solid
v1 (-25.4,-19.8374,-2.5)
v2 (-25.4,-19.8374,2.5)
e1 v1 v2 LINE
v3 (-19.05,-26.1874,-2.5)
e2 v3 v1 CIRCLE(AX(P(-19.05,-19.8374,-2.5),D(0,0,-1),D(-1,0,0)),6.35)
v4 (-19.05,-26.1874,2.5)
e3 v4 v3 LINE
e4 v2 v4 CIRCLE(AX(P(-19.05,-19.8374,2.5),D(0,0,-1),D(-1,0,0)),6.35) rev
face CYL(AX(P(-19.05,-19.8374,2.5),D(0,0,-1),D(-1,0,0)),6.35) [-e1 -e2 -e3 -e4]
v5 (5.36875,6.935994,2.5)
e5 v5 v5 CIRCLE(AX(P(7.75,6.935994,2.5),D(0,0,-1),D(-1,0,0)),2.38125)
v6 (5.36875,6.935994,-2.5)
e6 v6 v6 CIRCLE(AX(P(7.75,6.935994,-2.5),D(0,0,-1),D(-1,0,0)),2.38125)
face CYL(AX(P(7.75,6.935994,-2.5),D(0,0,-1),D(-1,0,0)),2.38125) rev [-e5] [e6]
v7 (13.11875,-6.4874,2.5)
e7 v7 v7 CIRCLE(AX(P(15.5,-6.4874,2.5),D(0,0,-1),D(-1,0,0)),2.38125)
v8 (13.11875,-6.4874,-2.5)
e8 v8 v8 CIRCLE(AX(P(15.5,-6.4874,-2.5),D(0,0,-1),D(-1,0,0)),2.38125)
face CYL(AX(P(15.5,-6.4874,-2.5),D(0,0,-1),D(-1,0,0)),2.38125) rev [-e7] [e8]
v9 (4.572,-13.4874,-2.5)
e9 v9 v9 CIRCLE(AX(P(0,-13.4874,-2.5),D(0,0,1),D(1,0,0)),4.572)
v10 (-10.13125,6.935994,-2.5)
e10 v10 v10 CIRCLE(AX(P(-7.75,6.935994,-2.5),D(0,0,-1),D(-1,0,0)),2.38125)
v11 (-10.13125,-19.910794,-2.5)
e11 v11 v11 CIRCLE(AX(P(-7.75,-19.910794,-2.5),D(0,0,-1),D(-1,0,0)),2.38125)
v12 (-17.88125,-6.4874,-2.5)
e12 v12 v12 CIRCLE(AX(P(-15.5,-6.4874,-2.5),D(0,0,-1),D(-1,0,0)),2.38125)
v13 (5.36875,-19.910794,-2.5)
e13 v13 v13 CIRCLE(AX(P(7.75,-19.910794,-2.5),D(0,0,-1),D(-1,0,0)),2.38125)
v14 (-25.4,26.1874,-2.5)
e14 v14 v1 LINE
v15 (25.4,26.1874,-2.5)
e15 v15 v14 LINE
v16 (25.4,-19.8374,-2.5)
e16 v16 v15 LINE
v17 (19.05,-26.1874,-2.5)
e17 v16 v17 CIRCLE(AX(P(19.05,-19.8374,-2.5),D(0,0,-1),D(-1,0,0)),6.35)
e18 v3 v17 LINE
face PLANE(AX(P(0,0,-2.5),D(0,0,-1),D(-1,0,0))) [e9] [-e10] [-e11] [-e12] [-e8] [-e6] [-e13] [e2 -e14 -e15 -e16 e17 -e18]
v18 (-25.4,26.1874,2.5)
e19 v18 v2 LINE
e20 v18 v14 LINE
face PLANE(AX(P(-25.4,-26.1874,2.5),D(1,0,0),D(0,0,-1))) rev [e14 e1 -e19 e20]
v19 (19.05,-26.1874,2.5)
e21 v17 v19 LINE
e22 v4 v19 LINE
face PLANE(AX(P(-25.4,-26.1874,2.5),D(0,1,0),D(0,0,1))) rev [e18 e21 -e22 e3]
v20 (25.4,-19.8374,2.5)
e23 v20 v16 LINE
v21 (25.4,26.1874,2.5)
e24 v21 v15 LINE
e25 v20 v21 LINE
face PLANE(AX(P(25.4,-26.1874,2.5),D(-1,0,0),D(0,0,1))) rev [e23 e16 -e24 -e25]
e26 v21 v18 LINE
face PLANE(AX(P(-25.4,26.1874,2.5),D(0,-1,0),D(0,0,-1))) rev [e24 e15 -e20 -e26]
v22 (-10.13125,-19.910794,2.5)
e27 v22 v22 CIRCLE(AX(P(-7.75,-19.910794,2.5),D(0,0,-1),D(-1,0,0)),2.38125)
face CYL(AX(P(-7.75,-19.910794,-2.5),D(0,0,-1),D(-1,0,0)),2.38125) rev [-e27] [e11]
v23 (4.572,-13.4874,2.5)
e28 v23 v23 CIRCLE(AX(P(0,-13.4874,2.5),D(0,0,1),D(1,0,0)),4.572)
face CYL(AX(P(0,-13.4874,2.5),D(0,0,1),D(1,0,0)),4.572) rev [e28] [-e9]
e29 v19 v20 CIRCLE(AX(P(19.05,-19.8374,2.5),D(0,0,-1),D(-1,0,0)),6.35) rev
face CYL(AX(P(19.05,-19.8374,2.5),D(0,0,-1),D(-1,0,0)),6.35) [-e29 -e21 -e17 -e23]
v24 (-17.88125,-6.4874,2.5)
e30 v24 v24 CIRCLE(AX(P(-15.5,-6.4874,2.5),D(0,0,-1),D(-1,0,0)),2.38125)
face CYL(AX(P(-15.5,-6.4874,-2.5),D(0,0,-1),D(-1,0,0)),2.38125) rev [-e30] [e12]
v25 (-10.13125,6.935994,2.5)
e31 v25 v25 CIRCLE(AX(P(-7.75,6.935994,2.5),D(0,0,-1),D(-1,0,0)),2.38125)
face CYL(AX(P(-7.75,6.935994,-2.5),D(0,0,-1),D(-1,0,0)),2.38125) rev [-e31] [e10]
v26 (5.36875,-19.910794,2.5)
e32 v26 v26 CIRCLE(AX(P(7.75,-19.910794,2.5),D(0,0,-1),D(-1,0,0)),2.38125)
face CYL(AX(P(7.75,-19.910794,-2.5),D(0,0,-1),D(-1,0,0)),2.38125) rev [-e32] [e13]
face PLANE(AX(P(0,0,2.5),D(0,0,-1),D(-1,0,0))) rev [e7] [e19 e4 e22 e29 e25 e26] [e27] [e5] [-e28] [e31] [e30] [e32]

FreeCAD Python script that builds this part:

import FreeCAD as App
import Part
import Sketcher
Q = App.Units.Quantity


def edges_at(feature, points):
    """Names of the edges that pass closest to the given points."""
    edges = feature.Shape.Edges
    near = lambda p: min(range(len(edges)), key=lambda i: edges[i].distToShape(Part.Vertex(*p))[0])
    return sorted({f"Edge{near(p) + 1}" for p in points})


def add_polygon(sketch, points):
    """Adds a closed chain of lines whose ends are joined by coincident constraints."""
    first, n = sketch.GeometryCount, len(points)
    for a, b in zip(points, points[1:] + points[:1]):
        sketch.addGeometry(Part.LineSegment(App.Vector(*a, 0), App.Vector(*b, 0)), False)
    for i in range(n):
        sketch.addConstraint(Sketcher.Constraint("Coincident", first + i, 2, first + (i + 1) % n, 1))

doc = App.newDocument("Part")
body = doc.addObject("PartDesign::Body", "Body")

# Sketch on XY plane
sketch1 = body.newObject("Sketcher::SketchObject", "Sketch")
sketch1.AttachmentSupport = (doc.getObject("XY_Plane"), [""])
sketch1.MapMode = "FlatFace"
add_polygon(sketch1, [(-25, 26), (-25, -26), (25, -26), (25, 26)])  # lines 0-3
sketch1.addConstraint([
    Sketcher.Constraint("Vertical", 0),
    Sketcher.Constraint("Horizontal", 1),
    Sketcher.Constraint("Vertical", 2),
    Sketcher.Constraint("Horizontal", 3),
    Sketcher.Constraint("Symmetric", 0, 2, 2, 2, -1, 1),
    Sketcher.Constraint("DistanceX", 1, 1, 1, 2, Q("2 in")),
    Sketcher.Constraint("DistanceY", 0, 2, 0, 1, Q("2.062 in")),
])
pad1 = body.newObject("PartDesign::Pad", "Pad")
pad1.Profile = sketch1
pad1.Length = 5
pad1.Midplane = True

# Sketch on XY plane
sketch2 = body.newObject("Sketcher::SketchObject", "Sketch001")
sketch2.AttachmentSupport = (doc.getObject("XY_Plane"), [""])
sketch2.MapMode = "FlatFace"
sketch2.AttachmentOffset = App.Placement(App.Vector(0, 0, 2.5), App.Rotation())
sketch2.addGeometry(Part.Circle(App.Vector(0, -13.5, 0), App.Vector(0, 0, 1), 4.6), False)
sketch2.addConstraint([
    Sketcher.Constraint("PointOnObject", 0, 3, -2),
    Sketcher.Constraint("Diameter", 0, Q("0.36 in")),
    Sketcher.Constraint("DistanceY", 0, 3, -1, 1, Q("0.531 in")),
])
doc.recompute()
hole = body.newObject("PartDesign::Hole", "Hole")
hole.Profile = sketch2
hole.ThreadType = "None"
hole.Diameter = Q("0.36 in")
hole.DepthType = "ThroughAll"

# Sketch on XY plane
sketch3 = body.newObject("Sketcher::SketchObject", "Sketch002")
sketch3.AttachmentSupport = (doc.getObject("XY_Plane"), [""])
sketch3.MapMode = "FlatFace"
sketch3.AttachmentOffset = App.Placement(App.Vector(0, 0, -2.5), App.Rotation())
sketch3.addGeometry([
    Part.Circle(App.Vector(-15.5, -6.5, 0), App.Vector(0, 0, 1), 2.4),  # 0
    Part.Circle(App.Vector(-7.8, 6.9, 0), App.Vector(0, 0, 1), 2.4),  # 1
    Part.Circle(App.Vector(7.8, 6.9, 0), App.Vector(0, 0, 1), 2.4),  # 2
    Part.Circle(App.Vector(15.5, -6.5, 0), App.Vector(0, 0, 1), 2.4),  # 3
    Part.Circle(App.Vector(-7.8, -19.9, 0), App.Vector(0, 0, 1), 2.4),  # 4
    Part.Circle(App.Vector(7.8, -19.9, 0), App.Vector(0, 0, 1), 2.4),  # 5
], False)
sketch3.addConstraint([
    Sketcher.Constraint("Equal", 0, 1),
    Sketcher.Constraint("Equal", 1, 2),
    Sketcher.Constraint("Equal", 2, 3),
    Sketcher.Constraint("Equal", 3, 4),
    Sketcher.Constraint("Equal", 4, 5),
    Sketcher.Constraint("Symmetric", 1, 3, 2, 3, -2),
    Sketcher.Constraint("Symmetric", 0, 3, 3, 3, -2),
    Sketcher.Constraint("Symmetric", 4, 3, 5, 3, -2),
    Sketcher.Constraint("Vertical", 1, 3, 4, 3),
    Sketcher.Constraint("Diameter", 0, Q("0.1875 in")),
    Sketcher.Constraint("DistanceX", 0, 3, -1, 1, Q("15.5 mm")),
    Sketcher.Constraint("DistanceY", 0, 3, -1, 1, Q("6.4874 mm")),
    Sketcher.Constraint("DistanceX", 1, 3, -1, 1, Q("7.75 mm")),
    Sketcher.Constraint("DistanceY", -1, 1, 1, 3, Q("6.935994 mm")),
    Sketcher.Constraint("DistanceY", 4, 3, -1, 1, Q("19.910794 mm")),
])
doc.recompute()
hole2 = body.newObject("PartDesign::Hole", "Hole001")
hole2.Profile = sketch3
hole2.ThreadType = "None"
hole2.Diameter = Q("0.1875 in")
hole2.DepthType = "ThroughAll"
hole2.Reversed = True
doc.recompute()

fillet = body.newObject("PartDesign::Fillet", "Fillet")
fillet.Base = (hole2, edges_at(hole2, [(25.4, -26.187, 0), (-25.4, -26.187, 0)]))
fillet.Radius = Q("0.25 in")

doc.recompute()
